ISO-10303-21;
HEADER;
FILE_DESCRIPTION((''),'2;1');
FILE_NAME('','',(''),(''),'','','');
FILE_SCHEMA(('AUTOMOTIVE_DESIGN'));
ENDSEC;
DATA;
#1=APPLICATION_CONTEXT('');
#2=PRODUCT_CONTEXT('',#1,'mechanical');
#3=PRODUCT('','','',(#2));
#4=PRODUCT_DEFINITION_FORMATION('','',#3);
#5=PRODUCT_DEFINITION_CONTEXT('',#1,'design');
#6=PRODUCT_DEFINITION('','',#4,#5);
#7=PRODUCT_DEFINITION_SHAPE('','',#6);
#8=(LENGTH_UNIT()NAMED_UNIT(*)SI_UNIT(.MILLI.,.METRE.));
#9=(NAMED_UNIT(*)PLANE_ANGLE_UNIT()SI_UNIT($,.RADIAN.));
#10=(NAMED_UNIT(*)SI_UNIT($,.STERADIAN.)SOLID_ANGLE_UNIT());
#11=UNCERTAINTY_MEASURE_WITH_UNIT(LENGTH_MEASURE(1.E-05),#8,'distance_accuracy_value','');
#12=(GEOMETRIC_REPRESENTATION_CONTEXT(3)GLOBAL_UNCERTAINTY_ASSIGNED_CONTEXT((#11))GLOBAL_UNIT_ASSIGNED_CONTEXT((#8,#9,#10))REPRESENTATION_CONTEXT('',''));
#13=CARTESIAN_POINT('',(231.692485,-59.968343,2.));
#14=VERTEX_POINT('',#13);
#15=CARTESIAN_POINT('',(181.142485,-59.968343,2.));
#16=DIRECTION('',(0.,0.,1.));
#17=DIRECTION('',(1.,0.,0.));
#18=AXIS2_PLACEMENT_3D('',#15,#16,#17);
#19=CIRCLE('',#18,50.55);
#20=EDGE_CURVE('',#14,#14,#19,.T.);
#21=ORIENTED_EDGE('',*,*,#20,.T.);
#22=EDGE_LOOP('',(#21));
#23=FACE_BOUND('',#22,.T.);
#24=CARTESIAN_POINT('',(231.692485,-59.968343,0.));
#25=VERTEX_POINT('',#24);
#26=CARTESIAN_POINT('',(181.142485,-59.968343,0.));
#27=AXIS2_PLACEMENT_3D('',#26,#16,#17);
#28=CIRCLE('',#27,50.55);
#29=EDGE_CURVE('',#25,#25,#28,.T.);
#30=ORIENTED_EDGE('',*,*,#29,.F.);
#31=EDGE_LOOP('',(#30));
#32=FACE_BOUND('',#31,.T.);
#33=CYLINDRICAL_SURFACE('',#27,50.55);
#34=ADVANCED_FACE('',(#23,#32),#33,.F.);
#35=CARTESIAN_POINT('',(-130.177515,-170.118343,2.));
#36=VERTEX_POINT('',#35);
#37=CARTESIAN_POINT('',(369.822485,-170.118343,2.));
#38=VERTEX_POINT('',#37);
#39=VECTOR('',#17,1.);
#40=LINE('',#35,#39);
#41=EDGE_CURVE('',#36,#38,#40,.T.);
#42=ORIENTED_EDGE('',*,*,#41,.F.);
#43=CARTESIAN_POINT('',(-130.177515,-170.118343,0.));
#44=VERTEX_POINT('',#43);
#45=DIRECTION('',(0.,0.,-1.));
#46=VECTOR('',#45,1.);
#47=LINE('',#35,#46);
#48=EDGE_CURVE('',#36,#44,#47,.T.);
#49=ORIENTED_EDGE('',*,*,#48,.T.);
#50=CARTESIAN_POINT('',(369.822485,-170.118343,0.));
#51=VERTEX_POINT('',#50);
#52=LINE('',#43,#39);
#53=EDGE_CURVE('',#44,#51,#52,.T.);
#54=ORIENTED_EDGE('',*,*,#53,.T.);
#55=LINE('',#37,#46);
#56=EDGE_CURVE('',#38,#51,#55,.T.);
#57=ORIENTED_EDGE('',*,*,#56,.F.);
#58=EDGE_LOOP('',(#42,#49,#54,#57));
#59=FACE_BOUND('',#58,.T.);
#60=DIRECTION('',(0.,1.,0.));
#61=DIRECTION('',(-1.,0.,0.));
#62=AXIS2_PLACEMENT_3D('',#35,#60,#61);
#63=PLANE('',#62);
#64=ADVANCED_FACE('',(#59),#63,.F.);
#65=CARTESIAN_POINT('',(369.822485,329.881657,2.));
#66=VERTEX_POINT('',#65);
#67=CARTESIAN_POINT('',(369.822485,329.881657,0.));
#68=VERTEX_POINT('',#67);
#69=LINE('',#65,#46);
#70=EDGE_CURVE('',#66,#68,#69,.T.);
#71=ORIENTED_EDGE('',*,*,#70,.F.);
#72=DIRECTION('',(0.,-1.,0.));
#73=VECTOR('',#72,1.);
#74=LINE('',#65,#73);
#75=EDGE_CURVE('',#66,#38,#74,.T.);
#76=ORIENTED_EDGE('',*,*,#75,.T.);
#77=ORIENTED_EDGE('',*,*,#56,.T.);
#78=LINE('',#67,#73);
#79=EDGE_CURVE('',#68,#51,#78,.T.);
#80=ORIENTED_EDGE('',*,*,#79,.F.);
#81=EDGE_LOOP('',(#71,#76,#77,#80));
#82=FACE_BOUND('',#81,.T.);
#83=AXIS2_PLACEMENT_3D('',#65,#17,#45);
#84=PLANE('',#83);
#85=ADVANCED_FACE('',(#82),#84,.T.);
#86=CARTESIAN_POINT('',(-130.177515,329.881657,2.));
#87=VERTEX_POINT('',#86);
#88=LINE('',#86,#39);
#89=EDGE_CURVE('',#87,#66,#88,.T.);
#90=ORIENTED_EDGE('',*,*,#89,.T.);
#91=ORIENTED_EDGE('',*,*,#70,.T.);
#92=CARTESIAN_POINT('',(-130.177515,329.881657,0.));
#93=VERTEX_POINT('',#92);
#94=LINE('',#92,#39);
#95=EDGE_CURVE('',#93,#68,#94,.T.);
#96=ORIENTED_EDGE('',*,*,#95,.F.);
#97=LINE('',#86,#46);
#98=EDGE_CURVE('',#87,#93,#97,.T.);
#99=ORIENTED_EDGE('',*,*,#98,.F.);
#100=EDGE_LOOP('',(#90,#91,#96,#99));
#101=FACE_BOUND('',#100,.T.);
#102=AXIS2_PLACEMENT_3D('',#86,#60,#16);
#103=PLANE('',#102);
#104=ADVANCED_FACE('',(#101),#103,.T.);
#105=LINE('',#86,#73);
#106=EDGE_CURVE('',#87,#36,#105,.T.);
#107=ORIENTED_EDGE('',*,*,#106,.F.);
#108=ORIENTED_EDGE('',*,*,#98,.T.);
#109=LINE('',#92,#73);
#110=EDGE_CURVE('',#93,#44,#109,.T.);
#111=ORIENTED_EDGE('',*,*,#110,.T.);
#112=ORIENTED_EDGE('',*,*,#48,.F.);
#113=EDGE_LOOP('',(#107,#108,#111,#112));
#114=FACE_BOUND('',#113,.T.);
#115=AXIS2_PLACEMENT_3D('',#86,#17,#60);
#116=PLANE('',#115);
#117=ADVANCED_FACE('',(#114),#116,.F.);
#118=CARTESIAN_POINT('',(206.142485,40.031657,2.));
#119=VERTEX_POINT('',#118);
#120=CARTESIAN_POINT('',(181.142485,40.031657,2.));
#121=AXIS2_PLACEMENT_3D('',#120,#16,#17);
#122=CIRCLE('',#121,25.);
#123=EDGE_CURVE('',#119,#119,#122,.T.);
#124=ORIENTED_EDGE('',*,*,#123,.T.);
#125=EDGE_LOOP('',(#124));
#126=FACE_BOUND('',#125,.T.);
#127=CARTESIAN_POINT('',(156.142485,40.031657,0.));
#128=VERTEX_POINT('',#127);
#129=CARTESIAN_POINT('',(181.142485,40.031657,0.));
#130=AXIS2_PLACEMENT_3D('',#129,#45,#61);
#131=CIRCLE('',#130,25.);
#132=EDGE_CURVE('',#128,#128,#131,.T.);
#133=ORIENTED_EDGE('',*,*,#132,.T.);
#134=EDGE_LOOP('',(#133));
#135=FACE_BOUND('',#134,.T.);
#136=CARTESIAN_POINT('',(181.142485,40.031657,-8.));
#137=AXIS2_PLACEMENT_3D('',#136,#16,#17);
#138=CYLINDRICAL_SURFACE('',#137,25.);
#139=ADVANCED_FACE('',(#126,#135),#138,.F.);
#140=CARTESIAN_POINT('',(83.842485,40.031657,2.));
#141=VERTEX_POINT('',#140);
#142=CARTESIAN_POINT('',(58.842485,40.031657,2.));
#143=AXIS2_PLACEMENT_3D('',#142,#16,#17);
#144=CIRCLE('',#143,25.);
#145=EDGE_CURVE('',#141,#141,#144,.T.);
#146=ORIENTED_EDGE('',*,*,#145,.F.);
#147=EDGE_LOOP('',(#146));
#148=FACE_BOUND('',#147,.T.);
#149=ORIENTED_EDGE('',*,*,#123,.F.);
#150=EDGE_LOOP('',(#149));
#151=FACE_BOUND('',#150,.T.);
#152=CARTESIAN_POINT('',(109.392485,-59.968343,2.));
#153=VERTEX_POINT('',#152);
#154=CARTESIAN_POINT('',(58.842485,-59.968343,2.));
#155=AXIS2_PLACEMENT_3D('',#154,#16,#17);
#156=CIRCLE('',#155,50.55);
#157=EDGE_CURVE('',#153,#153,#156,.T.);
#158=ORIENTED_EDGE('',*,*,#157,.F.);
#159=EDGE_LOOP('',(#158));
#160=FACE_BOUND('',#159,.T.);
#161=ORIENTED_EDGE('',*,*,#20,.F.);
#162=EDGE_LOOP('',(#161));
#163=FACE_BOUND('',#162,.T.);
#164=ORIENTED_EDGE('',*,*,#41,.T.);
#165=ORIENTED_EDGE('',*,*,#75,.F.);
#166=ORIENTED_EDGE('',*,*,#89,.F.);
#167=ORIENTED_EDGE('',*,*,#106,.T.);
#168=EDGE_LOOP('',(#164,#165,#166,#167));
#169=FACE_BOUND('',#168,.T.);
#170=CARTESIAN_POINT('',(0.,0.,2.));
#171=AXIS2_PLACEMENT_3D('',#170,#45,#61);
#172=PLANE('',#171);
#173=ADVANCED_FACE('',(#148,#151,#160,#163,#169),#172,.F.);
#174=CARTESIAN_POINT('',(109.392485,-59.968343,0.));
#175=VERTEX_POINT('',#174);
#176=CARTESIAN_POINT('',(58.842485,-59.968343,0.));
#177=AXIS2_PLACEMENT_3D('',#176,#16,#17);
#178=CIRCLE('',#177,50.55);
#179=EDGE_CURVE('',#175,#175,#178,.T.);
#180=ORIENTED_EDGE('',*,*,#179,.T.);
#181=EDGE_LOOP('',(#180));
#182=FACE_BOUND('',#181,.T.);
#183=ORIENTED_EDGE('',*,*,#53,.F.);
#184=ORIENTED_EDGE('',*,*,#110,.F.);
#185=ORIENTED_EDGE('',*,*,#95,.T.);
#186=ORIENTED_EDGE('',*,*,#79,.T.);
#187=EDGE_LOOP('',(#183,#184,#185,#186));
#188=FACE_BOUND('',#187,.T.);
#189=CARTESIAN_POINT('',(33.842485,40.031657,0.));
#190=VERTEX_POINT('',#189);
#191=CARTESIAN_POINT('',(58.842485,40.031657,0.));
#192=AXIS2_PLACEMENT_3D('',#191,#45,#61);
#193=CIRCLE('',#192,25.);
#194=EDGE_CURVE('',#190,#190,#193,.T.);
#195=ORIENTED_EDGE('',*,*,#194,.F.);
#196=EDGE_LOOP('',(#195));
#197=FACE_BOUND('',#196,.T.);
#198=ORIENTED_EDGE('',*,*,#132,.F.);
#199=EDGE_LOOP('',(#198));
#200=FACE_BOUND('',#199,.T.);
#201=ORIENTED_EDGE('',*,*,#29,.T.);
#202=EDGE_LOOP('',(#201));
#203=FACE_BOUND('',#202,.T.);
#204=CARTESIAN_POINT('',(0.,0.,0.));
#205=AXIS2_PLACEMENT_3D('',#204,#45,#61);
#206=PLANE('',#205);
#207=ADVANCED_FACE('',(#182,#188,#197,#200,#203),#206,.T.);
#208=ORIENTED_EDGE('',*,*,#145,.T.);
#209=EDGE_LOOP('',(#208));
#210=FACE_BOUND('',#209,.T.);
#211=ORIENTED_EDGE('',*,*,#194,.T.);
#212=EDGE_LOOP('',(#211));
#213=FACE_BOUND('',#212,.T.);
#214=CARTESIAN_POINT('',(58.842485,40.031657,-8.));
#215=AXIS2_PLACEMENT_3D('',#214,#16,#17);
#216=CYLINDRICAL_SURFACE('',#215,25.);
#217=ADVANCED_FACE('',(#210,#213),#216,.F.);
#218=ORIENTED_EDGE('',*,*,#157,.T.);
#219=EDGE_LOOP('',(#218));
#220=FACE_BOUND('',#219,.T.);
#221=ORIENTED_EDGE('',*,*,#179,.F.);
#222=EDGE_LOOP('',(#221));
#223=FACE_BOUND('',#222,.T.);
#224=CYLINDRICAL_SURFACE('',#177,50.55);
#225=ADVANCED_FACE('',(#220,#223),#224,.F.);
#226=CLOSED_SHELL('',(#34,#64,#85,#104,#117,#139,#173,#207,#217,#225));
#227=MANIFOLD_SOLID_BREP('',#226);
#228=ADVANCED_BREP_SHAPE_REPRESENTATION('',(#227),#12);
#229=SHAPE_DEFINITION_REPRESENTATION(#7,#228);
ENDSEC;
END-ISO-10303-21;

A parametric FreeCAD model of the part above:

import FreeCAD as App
import Part
import Sketcher

V = App.Vector


def add_polygon(sketch, points):
    """Adds a closed chain of lines whose ends are joined by coincident constraints."""
    first, n = sketch.GeometryCount, len(points)
    for a, b in zip(points, points[1:] + points[:1]):
        sketch.addGeometry(Part.LineSegment(App.Vector(*a, 0), App.Vector(*b, 0)), False)
    for i in range(n):
        sketch.addConstraint(Sketcher.Constraint("Coincident", first + i, 2, first + (i + 1) % n, 1))

doc = App.newDocument("Part")
body = doc.addObject("PartDesign::Body", "Body")

sketch1 = body.newObject("Sketcher::SketchObject", "Sketch")
sketch1.AttachmentSupport = (doc.getObject("XY_Plane"), [""])
sketch1.MapMode = "FlatFace"
add_polygon(sketch1, [(-130, 330), (-130, -170), (370, -170), (370, 330)])
sketch1.addConstraint(Sketcher.Constraint("Vertical", 0))
sketch1.addConstraint(Sketcher.Constraint("Horizontal", 1))
sketch1.addConstraint(Sketcher.Constraint("Vertical", 2))
sketch1.addConstraint(Sketcher.Constraint("Horizontal", 3))
sketch1.addConstraint(Sketcher.Constraint("Equal", 3, 0))
sketch1.addConstraint(Sketcher.Constraint("DistanceX", 1, 1, 1, 2, 500.0))
sketch1.addConstraint(Sketcher.Constraint("DistanceX", 0, 2, -1, 1, 130.177515))
sketch1.addConstraint(Sketcher.Constraint("DistanceY", 0, 2, -1, 1, 170.118343))
pad1 = body.newObject("PartDesign::Pad", "Pad")
pad1.Profile = sketch1
pad1.Length = 2

sketch2 = body.newObject("Sketcher::SketchObject", "Sketch001")
sketch2.AttachmentSupport = (doc.getObject("XY_Plane"), [""])
sketch2.MapMode = "FlatFace"
sketch2.AttachmentOffset = App.Placement(V(0, 0, 2), App.Rotation())
sketch2.addGeometry(Part.Circle(V(59, -60, 0), V(0, 0, 1), 51), False)
sketch2.addGeometry(Part.Circle(V(181, -60, 0), V(0, 0, 1), 51), False)
sketch2.addConstraint(Sketcher.Constraint("Equal", 0, 1))
sketch2.addConstraint(Sketcher.Constraint("Horizontal", 0, 3, 1, 3))
sketch2.addConstraint(Sketcher.Constraint("Diameter", 0, 101.1))
sketch2.addConstraint(Sketcher.Constraint("DistanceX", 0, 3, 1, 3, 122.3))
sketch2.addConstraint(Sketcher.Constraint("DistanceX", -1, 1, 0, 3, 58.842485))
sketch2.addConstraint(Sketcher.Constraint("DistanceY", 0, 3, -1, 1, 59.968343))
pocket1 = body.newObject("PartDesign::Pocket", "Pocket")
pocket1.Profile = sketch2
pocket1.Length = 2

sketch3 = body.newObject("Sketcher::SketchObject", "Sketch002")
sketch3.AttachmentSupport = (doc.getObject("XY_Plane"), [""])
sketch3.MapMode = "FlatFace"
sketch3.AttachmentOffset = App.Placement(V(0, 0, 2), App.Rotation())
sketch3.addGeometry(Part.Circle(V(181, 40, 0), V(0, 0, 1), 25), False)
sketch3.addGeometry(Part.Circle(V(59, 40, 0), V(0, 0, 1), 25), False)
sketch3.addConstraint(Sketcher.Constraint("Equal", 0, 1))
sketch3.addConstraint(Sketcher.Constraint("Horizontal", 0, 3, 1, 3))
sketch3.addConstraint(Sketcher.Constraint("Diameter", 0, 50.0))
sketch3.addConstraint(Sketcher.Constraint("DistanceX", 1, 3, 0, 3, 122.3))
sketch3.addConstraint(Sketcher.Constraint("DistanceX", -1, 1, 0, 3, 181.142485))
sketch3.addConstraint(Sketcher.Constraint("DistanceY", -1, 1, 0, 3, 40.031657))
pocket2 = body.newObject("PartDesign::Pocket", "Pocket001")
pocket2.Profile = sketch3
pocket2.Length = 10

doc.recompute()
